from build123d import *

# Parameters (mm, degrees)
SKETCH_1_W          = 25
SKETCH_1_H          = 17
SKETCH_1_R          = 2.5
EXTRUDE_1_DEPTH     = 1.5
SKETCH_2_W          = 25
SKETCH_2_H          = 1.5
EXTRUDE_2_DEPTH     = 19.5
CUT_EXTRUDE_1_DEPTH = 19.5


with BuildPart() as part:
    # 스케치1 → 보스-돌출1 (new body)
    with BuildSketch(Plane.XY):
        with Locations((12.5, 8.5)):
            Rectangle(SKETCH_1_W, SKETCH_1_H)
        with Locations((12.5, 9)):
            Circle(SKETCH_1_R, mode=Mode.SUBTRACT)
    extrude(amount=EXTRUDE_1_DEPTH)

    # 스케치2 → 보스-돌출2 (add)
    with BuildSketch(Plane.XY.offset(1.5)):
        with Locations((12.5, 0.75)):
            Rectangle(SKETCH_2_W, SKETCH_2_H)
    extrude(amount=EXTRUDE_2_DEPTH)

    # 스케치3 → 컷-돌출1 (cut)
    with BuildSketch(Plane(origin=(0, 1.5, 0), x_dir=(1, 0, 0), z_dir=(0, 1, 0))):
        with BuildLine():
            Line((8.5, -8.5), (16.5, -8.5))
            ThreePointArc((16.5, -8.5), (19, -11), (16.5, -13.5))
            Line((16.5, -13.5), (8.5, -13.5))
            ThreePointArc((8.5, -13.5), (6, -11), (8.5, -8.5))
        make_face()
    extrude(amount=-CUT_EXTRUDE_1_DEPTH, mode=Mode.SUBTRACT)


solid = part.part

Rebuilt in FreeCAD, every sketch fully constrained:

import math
import FreeCAD as App
import Part
import Sketcher
from FreeCAD import Vector
Q = App.Units.Quantity


def add_polygon(sketch, points):
    """Adds a closed chain of lines whose ends are joined by coincident constraints."""
    first, n = sketch.GeometryCount, len(points)
    for a, b in zip(points, points[1:] + points[:1]):
        sketch.addGeometry(Part.LineSegment(App.Vector(*a, 0), App.Vector(*b, 0)), False)
    for i in range(n):
        sketch.addConstraint(Sketcher.Constraint("Coincident", first + i, 2, first + (i + 1) % n, 1))

doc = App.newDocument("Part")
params = doc.addObject("Spreadsheet::Sheet", "Params")
for row, (alias, value) in enumerate([
    ("sketch1_diameter", "5 mm"),
    ("sketch1_width", "25 mm"),
    ("sketch1_height", "17 mm"),
    ("pad1_length", "1.5 mm"),
    ("sketch2_width", "25 mm"),
    ("sketch2_height", "1.5 mm"),
    ("pad2_length", "19.5 mm"),
    ("sketch3_radius", "2.5 mm"),
    ("sketch3_width", "8 mm"),
    ("pocket1_length", "19.5 mm"),
], start=1):
    params.set(f"A{row}", alias)
    params.set(f"B{row}", "=" + value)
    params.setAlias(f"B{row}", alias)

body = doc.addObject("PartDesign::Body", "Body")

# Sketch on XY plane
sketch1 = doc.addObject("Sketcher::SketchObject", "Sketch")
body.addObject(sketch1)
sketch1.AttachmentSupport = (doc.XY_Plane, [""])
sketch1.MapMode = "FlatFace"
add_polygon(sketch1, [(0, 17), (0, 0), (25, 0), (25, 17)])  # lines 0-3
sketch1.addGeometry(Part.Circle(Vector(12.5, 9, 0), Vector(0, 0, 1), 2.5), False)  # 4
sketch1.addConstraint([
    Sketcher.Constraint("Vertical", 0),
    Sketcher.Constraint("Horizontal", 1),
    Sketcher.Constraint("Vertical", 2),
    Sketcher.Constraint("Horizontal", 3),
    Sketcher.Constraint("Coincident", 0, 2, -1, 1),
    Sketcher.Constraint("Diameter", 4, Q("5 mm")),
    Sketcher.Constraint("DistanceX", 1, 1, 1, 2, Q("25 mm")),
    Sketcher.Constraint("DistanceY", 0, 2, 0, 1, Q("17 mm")),
    Sketcher.Constraint("DistanceY", -1, 1, 4, 3, Q("9 mm")),
    Sketcher.Constraint("DistanceX", -1, 1, 4, 3, Q("12.5 mm")),
])
sketch1.setExpression("Constraints[9]", "Params.sketch1_diameter")
sketch1.setExpression("Constraints[10]", "Params.sketch1_width")
sketch1.setExpression("Constraints[11]", "Params.sketch1_height")
pad1 = doc.addObject("PartDesign::Pad", "Pad")
body.addObject(pad1)
pad1.Profile = sketch1
pad1.setExpression("Length", "Params.pad1_length")

# Sketch on XY plane
sketch2 = doc.addObject("Sketcher::SketchObject", "Sketch001")
body.addObject(sketch2)
sketch2.AttachmentSupport = (doc.XY_Plane, [""])
sketch2.MapMode = "FlatFace"
sketch2.AttachmentOffset = App.Placement(Vector(0, 0, 1.5), App.Rotation())
add_polygon(sketch2, [(0, 1.5), (0, 0), (25, 0), (25, 1.5)])  # lines 0-3
sketch2.addConstraint([
    Sketcher.Constraint("Vertical", 0),
    Sketcher.Constraint("Horizontal", 1),
    Sketcher.Constraint("Vertical", 2),
    Sketcher.Constraint("Horizontal", 3),
    Sketcher.Constraint("Coincident", 0, 2, -1, 1),
    Sketcher.Constraint("DistanceX", 1, 1, 1, 2, Q("25 mm")),
    Sketcher.Constraint("DistanceY", 0, 2, 0, 1, Q("1.5 mm")),
])
sketch2.setExpression("Constraints[9]", "Params.sketch2_width")
sketch2.setExpression("Constraints[10]", "Params.sketch2_height")
pad2 = doc.addObject("PartDesign::Pad", "Pad001")
body.addObject(pad2)
pad2.Profile = sketch2
pad2.setExpression("Length", "Params.pad2_length")

# Sketch on XZ plane
sketch3 = doc.addObject("Sketcher::SketchObject", "Sketch002")
body.addObject(sketch3)
sketch3.AttachmentSupport = (doc.XZ_Plane, [""])
sketch3.MapMode = "FlatFace"
sketch3.AttachmentOffset = App.Placement(Vector(0, 0, -1.5), App.Rotation())
sketch3.addGeometry([
    Part.LineSegment(Vector(16.5, 8.5, 0), Vector(8.5, 8.5, 0)),
    Part.ArcOfCircle(Part.Circle(Vector(8.5, 11, 0), Vector(0, 0, 1), 2.5), math.radians(90), math.radians(270)),
    Part.LineSegment(Vector(8.5, 13.5, 0), Vector(16.5, 13.5, 0)),
    Part.ArcOfCircle(Part.Circle(Vector(16.5, 11, 0), Vector(0, 0, 1), 2.5), math.radians(-90), math.radians(90)),
], False)
sketch3.addConstraint([
    Sketcher.Constraint("Tangent", 0, 2, 1, 2),
    Sketcher.Constraint("Tangent", 1, 1, 2, 1),
    Sketcher.Constraint("Tangent", 2, 2, 3, 2),
    Sketcher.Constraint("Tangent", 3, 1, 0, 1),
    Sketcher.Constraint("Horizontal", 0),
    Sketcher.Constraint("Horizontal", 2),
    Sketcher.Constraint("Radius", 1, Q("2.5 mm")),
    Sketcher.Constraint("DistanceX", 0, 2, 0, 1, Q("8 mm")),
    Sketcher.Constraint("DistanceY", -1, 1, 1, 3, Q("11 mm")),
    Sketcher.Constraint("DistanceX", -1, 1, 1, 3, Q("8.5 mm")),
])
sketch3.setExpression("Constraints[6]", "Params.sketch3_radius")
sketch3.setExpression("Constraints[7]", "Params.sketch3_width")
pocket1 = doc.addObject("PartDesign::Pocket", "Pocket")
body.addObject(pocket1)
pocket1.Profile = sketch3
pocket1.setExpression("Length", "Params.pocket1_length")
pocket1.Reversed = True

doc.recompute()
